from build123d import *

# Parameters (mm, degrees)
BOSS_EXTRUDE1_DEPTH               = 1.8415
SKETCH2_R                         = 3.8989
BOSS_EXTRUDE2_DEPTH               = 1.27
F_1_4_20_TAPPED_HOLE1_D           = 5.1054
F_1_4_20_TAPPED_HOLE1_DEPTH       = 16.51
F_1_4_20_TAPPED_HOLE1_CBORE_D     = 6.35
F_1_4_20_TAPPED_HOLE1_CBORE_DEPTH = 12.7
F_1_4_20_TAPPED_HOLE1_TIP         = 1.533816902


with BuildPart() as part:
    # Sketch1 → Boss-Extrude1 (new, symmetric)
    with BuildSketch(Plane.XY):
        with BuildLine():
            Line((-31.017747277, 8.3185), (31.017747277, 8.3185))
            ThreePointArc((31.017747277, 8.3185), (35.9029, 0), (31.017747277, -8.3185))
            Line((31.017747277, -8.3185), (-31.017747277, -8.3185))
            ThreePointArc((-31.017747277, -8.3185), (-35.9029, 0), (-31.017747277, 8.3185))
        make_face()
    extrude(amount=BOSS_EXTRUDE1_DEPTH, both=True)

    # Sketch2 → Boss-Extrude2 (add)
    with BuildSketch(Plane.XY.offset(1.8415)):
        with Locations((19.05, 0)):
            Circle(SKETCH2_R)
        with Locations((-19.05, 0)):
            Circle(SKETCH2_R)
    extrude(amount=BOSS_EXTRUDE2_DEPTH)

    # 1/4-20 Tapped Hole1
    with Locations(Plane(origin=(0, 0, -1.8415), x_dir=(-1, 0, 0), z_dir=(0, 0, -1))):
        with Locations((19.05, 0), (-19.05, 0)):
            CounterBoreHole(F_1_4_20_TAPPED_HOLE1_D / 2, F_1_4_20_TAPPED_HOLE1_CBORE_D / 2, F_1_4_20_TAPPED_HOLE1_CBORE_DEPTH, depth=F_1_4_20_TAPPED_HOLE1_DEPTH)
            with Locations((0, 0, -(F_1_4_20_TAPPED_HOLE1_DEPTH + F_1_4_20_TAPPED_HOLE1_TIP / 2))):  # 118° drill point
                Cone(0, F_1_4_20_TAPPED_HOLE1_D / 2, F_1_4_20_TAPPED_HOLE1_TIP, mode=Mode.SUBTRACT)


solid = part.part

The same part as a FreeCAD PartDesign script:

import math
import FreeCAD as App
import Part
import Sketcher
from FreeCAD import Vector
Q = App.Units.Quantity

doc = App.newDocument("Part")
params = doc.addObject("Spreadsheet::Sheet", "Params")
for row, (alias, value) in enumerate([
    ("sketch1_radius", "0.375 in"),
    ("pad1_length", "0.145 in"),
    ("sketch2_diameter", "0.307 in"),
    ("pad2_length", "0.05 in"),
    ("sketch3_diameter", "0.201 in"),
    ("hole_diameter", "0.201 in"),
    ("hole_depth", "0.65 in"),
    ("hole_cbore_diameter", "0.25 in"),
    ("hole_cbore_depth", "0.5 in"),
], start=1):
    params.set(f"A{row}", alias)
    params.set(f"B{row}", "=" + value)
    params.setAlias(f"B{row}", alias)

body = doc.addObject("PartDesign::Body", "Body")

sketch1 = body.newObject("Sketcher::SketchObject", "Sketch")
sketch1.AttachmentSupport = (doc.getObject("XY_Plane"), [""])
sketch1.MapMode = "FlatFace"
sketch1.addGeometry([
    Part.LineSegment(Vector(31, 8, 0), Vector(-31, 8, 0)),
    Part.ArcOfCircle(Part.Circle(Vector(-26, 0, 0), Vector(0, 0, 1), 10), math.radians(119), math.radians(241)),
    Part.LineSegment(Vector(-31, -8, 0), Vector(31, -8, 0)),
    Part.ArcOfCircle(Part.Circle(Vector(26, 0, 0), Vector(0, 0, 1), 10), math.radians(-61), math.radians(61)),
], False)
sketch1.addConstraint([
    Sketcher.Constraint("Coincident", 0, 2, 1, 1),
    Sketcher.Constraint("Coincident", 1, 2, 2, 1),
    Sketcher.Constraint("Coincident", 2, 2, 3, 1),
    Sketcher.Constraint("Coincident", 3, 2, 0, 1),
    Sketcher.Constraint("Horizontal", 0),
    Sketcher.Constraint("Horizontal", 2),
    Sketcher.Constraint("Equal", 1, 3),
    Sketcher.Constraint("Symmetric", 1, 3, 3, 3, -1, 1),
    Sketcher.Constraint("Symmetric", 0, 2, 1, 2, -1),
    Sketcher.Constraint("Radius", 1, Q("0.375 in")),
    Sketcher.Constraint("DistanceX", 1, 3, 3, 3, Q("2.077 in")),
    Sketcher.Constraint("DistanceY", 1, 2, 0, 2, Q("0.655 in")),
])
sketch1.setExpression("Constraints[9]", "Params.sketch1_radius")
pad1 = body.newObject("PartDesign::Pad", "Pad")
pad1.Profile = sketch1
pad1.setExpression("Length", "Params.pad1_length")
pad1.Midplane = True

sketch2 = body.newObject("Sketcher::SketchObject", "Sketch001")
sketch2.AttachmentSupport = (doc.getObject("XY_Plane"), [""])
sketch2.MapMode = "FlatFace"
sketch2.AttachmentOffset = App.Placement(Vector(0, 0, 0.0725 * 25.4), App.Rotation())
sketch2.addGeometry([
    Part.Circle(Vector(19.1, 0, 0), Vector(0, 0, 1), 3.9),
    Part.Circle(Vector(-19.1, 0, 0), Vector(0, 0, 1), 3.9),
], False)
sketch2.addConstraint([
    Sketcher.Constraint("Equal", 0, 1),
    Sketcher.Constraint("Symmetric", 0, 3, 1, 3, -1, 1),
    Sketcher.Constraint("PointOnObject", 0, 3, -1),
    Sketcher.Constraint("Diameter", 0, Q("0.307 in")),
    Sketcher.Constraint("DistanceX", 1, 3, 0, 3, Q("1.5 in")),
])
sketch2.setExpression("Constraints[3]", "Params.sketch2_diameter")
pad2 = body.newObject("PartDesign::Pad", "Pad001")
pad2.Profile = sketch2
pad2.setExpression("Length", "Params.pad2_length")

sketch3 = body.newObject("Sketcher::SketchObject", "Sketch002")
sketch3.AttachmentSupport = (doc.getObject("XY_Plane"), [""])
sketch3.MapMode = "FlatFace"
sketch3.AttachmentOffset = App.Placement(Vector(0, 0, -0.0725 * 25.4), App.Rotation())
sketch3.addGeometry([
    Part.Circle(Vector(-19.1, 0, 0), Vector(0, 0, 1), 2.6),
    Part.Circle(Vector(19.1, 0, 0), Vector(0, 0, 1), 2.6),
], False)
sketch3.addConstraint([
    Sketcher.Constraint("Equal", 0, 1),
    Sketcher.Constraint("Symmetric", 0, 3, 1, 3, -1, 1),
    Sketcher.Constraint("PointOnObject", 0, 3, -1),
    Sketcher.Constraint("Diameter", 0, Q("0.201 in")),
    Sketcher.Constraint("DistanceX", 0, 3, 1, 3, Q("1.5 in")),
])
sketch3.setExpression("Constraints[3]", "Params.sketch3_diameter")
doc.recompute()
hole = body.newObject("PartDesign::Hole", "Hole")
hole.Profile = sketch3
hole.ThreadType = "None"
hole.setExpression("Diameter", "Params.hole_diameter")
hole.DepthType = "Dimension"
hole.setExpression("Depth", "Params.hole_depth")
hole.DrillPoint = "Angled"
hole.DrillPointAngle = 118
hole.HoleCutType = "Counterbore"
hole.setExpression("HoleCutDiameter", "Params.hole_cbore_diameter")
hole.setExpression("HoleCutDepth", "Params.hole_cbore_depth")
hole.Reversed = True

doc.recompute()
